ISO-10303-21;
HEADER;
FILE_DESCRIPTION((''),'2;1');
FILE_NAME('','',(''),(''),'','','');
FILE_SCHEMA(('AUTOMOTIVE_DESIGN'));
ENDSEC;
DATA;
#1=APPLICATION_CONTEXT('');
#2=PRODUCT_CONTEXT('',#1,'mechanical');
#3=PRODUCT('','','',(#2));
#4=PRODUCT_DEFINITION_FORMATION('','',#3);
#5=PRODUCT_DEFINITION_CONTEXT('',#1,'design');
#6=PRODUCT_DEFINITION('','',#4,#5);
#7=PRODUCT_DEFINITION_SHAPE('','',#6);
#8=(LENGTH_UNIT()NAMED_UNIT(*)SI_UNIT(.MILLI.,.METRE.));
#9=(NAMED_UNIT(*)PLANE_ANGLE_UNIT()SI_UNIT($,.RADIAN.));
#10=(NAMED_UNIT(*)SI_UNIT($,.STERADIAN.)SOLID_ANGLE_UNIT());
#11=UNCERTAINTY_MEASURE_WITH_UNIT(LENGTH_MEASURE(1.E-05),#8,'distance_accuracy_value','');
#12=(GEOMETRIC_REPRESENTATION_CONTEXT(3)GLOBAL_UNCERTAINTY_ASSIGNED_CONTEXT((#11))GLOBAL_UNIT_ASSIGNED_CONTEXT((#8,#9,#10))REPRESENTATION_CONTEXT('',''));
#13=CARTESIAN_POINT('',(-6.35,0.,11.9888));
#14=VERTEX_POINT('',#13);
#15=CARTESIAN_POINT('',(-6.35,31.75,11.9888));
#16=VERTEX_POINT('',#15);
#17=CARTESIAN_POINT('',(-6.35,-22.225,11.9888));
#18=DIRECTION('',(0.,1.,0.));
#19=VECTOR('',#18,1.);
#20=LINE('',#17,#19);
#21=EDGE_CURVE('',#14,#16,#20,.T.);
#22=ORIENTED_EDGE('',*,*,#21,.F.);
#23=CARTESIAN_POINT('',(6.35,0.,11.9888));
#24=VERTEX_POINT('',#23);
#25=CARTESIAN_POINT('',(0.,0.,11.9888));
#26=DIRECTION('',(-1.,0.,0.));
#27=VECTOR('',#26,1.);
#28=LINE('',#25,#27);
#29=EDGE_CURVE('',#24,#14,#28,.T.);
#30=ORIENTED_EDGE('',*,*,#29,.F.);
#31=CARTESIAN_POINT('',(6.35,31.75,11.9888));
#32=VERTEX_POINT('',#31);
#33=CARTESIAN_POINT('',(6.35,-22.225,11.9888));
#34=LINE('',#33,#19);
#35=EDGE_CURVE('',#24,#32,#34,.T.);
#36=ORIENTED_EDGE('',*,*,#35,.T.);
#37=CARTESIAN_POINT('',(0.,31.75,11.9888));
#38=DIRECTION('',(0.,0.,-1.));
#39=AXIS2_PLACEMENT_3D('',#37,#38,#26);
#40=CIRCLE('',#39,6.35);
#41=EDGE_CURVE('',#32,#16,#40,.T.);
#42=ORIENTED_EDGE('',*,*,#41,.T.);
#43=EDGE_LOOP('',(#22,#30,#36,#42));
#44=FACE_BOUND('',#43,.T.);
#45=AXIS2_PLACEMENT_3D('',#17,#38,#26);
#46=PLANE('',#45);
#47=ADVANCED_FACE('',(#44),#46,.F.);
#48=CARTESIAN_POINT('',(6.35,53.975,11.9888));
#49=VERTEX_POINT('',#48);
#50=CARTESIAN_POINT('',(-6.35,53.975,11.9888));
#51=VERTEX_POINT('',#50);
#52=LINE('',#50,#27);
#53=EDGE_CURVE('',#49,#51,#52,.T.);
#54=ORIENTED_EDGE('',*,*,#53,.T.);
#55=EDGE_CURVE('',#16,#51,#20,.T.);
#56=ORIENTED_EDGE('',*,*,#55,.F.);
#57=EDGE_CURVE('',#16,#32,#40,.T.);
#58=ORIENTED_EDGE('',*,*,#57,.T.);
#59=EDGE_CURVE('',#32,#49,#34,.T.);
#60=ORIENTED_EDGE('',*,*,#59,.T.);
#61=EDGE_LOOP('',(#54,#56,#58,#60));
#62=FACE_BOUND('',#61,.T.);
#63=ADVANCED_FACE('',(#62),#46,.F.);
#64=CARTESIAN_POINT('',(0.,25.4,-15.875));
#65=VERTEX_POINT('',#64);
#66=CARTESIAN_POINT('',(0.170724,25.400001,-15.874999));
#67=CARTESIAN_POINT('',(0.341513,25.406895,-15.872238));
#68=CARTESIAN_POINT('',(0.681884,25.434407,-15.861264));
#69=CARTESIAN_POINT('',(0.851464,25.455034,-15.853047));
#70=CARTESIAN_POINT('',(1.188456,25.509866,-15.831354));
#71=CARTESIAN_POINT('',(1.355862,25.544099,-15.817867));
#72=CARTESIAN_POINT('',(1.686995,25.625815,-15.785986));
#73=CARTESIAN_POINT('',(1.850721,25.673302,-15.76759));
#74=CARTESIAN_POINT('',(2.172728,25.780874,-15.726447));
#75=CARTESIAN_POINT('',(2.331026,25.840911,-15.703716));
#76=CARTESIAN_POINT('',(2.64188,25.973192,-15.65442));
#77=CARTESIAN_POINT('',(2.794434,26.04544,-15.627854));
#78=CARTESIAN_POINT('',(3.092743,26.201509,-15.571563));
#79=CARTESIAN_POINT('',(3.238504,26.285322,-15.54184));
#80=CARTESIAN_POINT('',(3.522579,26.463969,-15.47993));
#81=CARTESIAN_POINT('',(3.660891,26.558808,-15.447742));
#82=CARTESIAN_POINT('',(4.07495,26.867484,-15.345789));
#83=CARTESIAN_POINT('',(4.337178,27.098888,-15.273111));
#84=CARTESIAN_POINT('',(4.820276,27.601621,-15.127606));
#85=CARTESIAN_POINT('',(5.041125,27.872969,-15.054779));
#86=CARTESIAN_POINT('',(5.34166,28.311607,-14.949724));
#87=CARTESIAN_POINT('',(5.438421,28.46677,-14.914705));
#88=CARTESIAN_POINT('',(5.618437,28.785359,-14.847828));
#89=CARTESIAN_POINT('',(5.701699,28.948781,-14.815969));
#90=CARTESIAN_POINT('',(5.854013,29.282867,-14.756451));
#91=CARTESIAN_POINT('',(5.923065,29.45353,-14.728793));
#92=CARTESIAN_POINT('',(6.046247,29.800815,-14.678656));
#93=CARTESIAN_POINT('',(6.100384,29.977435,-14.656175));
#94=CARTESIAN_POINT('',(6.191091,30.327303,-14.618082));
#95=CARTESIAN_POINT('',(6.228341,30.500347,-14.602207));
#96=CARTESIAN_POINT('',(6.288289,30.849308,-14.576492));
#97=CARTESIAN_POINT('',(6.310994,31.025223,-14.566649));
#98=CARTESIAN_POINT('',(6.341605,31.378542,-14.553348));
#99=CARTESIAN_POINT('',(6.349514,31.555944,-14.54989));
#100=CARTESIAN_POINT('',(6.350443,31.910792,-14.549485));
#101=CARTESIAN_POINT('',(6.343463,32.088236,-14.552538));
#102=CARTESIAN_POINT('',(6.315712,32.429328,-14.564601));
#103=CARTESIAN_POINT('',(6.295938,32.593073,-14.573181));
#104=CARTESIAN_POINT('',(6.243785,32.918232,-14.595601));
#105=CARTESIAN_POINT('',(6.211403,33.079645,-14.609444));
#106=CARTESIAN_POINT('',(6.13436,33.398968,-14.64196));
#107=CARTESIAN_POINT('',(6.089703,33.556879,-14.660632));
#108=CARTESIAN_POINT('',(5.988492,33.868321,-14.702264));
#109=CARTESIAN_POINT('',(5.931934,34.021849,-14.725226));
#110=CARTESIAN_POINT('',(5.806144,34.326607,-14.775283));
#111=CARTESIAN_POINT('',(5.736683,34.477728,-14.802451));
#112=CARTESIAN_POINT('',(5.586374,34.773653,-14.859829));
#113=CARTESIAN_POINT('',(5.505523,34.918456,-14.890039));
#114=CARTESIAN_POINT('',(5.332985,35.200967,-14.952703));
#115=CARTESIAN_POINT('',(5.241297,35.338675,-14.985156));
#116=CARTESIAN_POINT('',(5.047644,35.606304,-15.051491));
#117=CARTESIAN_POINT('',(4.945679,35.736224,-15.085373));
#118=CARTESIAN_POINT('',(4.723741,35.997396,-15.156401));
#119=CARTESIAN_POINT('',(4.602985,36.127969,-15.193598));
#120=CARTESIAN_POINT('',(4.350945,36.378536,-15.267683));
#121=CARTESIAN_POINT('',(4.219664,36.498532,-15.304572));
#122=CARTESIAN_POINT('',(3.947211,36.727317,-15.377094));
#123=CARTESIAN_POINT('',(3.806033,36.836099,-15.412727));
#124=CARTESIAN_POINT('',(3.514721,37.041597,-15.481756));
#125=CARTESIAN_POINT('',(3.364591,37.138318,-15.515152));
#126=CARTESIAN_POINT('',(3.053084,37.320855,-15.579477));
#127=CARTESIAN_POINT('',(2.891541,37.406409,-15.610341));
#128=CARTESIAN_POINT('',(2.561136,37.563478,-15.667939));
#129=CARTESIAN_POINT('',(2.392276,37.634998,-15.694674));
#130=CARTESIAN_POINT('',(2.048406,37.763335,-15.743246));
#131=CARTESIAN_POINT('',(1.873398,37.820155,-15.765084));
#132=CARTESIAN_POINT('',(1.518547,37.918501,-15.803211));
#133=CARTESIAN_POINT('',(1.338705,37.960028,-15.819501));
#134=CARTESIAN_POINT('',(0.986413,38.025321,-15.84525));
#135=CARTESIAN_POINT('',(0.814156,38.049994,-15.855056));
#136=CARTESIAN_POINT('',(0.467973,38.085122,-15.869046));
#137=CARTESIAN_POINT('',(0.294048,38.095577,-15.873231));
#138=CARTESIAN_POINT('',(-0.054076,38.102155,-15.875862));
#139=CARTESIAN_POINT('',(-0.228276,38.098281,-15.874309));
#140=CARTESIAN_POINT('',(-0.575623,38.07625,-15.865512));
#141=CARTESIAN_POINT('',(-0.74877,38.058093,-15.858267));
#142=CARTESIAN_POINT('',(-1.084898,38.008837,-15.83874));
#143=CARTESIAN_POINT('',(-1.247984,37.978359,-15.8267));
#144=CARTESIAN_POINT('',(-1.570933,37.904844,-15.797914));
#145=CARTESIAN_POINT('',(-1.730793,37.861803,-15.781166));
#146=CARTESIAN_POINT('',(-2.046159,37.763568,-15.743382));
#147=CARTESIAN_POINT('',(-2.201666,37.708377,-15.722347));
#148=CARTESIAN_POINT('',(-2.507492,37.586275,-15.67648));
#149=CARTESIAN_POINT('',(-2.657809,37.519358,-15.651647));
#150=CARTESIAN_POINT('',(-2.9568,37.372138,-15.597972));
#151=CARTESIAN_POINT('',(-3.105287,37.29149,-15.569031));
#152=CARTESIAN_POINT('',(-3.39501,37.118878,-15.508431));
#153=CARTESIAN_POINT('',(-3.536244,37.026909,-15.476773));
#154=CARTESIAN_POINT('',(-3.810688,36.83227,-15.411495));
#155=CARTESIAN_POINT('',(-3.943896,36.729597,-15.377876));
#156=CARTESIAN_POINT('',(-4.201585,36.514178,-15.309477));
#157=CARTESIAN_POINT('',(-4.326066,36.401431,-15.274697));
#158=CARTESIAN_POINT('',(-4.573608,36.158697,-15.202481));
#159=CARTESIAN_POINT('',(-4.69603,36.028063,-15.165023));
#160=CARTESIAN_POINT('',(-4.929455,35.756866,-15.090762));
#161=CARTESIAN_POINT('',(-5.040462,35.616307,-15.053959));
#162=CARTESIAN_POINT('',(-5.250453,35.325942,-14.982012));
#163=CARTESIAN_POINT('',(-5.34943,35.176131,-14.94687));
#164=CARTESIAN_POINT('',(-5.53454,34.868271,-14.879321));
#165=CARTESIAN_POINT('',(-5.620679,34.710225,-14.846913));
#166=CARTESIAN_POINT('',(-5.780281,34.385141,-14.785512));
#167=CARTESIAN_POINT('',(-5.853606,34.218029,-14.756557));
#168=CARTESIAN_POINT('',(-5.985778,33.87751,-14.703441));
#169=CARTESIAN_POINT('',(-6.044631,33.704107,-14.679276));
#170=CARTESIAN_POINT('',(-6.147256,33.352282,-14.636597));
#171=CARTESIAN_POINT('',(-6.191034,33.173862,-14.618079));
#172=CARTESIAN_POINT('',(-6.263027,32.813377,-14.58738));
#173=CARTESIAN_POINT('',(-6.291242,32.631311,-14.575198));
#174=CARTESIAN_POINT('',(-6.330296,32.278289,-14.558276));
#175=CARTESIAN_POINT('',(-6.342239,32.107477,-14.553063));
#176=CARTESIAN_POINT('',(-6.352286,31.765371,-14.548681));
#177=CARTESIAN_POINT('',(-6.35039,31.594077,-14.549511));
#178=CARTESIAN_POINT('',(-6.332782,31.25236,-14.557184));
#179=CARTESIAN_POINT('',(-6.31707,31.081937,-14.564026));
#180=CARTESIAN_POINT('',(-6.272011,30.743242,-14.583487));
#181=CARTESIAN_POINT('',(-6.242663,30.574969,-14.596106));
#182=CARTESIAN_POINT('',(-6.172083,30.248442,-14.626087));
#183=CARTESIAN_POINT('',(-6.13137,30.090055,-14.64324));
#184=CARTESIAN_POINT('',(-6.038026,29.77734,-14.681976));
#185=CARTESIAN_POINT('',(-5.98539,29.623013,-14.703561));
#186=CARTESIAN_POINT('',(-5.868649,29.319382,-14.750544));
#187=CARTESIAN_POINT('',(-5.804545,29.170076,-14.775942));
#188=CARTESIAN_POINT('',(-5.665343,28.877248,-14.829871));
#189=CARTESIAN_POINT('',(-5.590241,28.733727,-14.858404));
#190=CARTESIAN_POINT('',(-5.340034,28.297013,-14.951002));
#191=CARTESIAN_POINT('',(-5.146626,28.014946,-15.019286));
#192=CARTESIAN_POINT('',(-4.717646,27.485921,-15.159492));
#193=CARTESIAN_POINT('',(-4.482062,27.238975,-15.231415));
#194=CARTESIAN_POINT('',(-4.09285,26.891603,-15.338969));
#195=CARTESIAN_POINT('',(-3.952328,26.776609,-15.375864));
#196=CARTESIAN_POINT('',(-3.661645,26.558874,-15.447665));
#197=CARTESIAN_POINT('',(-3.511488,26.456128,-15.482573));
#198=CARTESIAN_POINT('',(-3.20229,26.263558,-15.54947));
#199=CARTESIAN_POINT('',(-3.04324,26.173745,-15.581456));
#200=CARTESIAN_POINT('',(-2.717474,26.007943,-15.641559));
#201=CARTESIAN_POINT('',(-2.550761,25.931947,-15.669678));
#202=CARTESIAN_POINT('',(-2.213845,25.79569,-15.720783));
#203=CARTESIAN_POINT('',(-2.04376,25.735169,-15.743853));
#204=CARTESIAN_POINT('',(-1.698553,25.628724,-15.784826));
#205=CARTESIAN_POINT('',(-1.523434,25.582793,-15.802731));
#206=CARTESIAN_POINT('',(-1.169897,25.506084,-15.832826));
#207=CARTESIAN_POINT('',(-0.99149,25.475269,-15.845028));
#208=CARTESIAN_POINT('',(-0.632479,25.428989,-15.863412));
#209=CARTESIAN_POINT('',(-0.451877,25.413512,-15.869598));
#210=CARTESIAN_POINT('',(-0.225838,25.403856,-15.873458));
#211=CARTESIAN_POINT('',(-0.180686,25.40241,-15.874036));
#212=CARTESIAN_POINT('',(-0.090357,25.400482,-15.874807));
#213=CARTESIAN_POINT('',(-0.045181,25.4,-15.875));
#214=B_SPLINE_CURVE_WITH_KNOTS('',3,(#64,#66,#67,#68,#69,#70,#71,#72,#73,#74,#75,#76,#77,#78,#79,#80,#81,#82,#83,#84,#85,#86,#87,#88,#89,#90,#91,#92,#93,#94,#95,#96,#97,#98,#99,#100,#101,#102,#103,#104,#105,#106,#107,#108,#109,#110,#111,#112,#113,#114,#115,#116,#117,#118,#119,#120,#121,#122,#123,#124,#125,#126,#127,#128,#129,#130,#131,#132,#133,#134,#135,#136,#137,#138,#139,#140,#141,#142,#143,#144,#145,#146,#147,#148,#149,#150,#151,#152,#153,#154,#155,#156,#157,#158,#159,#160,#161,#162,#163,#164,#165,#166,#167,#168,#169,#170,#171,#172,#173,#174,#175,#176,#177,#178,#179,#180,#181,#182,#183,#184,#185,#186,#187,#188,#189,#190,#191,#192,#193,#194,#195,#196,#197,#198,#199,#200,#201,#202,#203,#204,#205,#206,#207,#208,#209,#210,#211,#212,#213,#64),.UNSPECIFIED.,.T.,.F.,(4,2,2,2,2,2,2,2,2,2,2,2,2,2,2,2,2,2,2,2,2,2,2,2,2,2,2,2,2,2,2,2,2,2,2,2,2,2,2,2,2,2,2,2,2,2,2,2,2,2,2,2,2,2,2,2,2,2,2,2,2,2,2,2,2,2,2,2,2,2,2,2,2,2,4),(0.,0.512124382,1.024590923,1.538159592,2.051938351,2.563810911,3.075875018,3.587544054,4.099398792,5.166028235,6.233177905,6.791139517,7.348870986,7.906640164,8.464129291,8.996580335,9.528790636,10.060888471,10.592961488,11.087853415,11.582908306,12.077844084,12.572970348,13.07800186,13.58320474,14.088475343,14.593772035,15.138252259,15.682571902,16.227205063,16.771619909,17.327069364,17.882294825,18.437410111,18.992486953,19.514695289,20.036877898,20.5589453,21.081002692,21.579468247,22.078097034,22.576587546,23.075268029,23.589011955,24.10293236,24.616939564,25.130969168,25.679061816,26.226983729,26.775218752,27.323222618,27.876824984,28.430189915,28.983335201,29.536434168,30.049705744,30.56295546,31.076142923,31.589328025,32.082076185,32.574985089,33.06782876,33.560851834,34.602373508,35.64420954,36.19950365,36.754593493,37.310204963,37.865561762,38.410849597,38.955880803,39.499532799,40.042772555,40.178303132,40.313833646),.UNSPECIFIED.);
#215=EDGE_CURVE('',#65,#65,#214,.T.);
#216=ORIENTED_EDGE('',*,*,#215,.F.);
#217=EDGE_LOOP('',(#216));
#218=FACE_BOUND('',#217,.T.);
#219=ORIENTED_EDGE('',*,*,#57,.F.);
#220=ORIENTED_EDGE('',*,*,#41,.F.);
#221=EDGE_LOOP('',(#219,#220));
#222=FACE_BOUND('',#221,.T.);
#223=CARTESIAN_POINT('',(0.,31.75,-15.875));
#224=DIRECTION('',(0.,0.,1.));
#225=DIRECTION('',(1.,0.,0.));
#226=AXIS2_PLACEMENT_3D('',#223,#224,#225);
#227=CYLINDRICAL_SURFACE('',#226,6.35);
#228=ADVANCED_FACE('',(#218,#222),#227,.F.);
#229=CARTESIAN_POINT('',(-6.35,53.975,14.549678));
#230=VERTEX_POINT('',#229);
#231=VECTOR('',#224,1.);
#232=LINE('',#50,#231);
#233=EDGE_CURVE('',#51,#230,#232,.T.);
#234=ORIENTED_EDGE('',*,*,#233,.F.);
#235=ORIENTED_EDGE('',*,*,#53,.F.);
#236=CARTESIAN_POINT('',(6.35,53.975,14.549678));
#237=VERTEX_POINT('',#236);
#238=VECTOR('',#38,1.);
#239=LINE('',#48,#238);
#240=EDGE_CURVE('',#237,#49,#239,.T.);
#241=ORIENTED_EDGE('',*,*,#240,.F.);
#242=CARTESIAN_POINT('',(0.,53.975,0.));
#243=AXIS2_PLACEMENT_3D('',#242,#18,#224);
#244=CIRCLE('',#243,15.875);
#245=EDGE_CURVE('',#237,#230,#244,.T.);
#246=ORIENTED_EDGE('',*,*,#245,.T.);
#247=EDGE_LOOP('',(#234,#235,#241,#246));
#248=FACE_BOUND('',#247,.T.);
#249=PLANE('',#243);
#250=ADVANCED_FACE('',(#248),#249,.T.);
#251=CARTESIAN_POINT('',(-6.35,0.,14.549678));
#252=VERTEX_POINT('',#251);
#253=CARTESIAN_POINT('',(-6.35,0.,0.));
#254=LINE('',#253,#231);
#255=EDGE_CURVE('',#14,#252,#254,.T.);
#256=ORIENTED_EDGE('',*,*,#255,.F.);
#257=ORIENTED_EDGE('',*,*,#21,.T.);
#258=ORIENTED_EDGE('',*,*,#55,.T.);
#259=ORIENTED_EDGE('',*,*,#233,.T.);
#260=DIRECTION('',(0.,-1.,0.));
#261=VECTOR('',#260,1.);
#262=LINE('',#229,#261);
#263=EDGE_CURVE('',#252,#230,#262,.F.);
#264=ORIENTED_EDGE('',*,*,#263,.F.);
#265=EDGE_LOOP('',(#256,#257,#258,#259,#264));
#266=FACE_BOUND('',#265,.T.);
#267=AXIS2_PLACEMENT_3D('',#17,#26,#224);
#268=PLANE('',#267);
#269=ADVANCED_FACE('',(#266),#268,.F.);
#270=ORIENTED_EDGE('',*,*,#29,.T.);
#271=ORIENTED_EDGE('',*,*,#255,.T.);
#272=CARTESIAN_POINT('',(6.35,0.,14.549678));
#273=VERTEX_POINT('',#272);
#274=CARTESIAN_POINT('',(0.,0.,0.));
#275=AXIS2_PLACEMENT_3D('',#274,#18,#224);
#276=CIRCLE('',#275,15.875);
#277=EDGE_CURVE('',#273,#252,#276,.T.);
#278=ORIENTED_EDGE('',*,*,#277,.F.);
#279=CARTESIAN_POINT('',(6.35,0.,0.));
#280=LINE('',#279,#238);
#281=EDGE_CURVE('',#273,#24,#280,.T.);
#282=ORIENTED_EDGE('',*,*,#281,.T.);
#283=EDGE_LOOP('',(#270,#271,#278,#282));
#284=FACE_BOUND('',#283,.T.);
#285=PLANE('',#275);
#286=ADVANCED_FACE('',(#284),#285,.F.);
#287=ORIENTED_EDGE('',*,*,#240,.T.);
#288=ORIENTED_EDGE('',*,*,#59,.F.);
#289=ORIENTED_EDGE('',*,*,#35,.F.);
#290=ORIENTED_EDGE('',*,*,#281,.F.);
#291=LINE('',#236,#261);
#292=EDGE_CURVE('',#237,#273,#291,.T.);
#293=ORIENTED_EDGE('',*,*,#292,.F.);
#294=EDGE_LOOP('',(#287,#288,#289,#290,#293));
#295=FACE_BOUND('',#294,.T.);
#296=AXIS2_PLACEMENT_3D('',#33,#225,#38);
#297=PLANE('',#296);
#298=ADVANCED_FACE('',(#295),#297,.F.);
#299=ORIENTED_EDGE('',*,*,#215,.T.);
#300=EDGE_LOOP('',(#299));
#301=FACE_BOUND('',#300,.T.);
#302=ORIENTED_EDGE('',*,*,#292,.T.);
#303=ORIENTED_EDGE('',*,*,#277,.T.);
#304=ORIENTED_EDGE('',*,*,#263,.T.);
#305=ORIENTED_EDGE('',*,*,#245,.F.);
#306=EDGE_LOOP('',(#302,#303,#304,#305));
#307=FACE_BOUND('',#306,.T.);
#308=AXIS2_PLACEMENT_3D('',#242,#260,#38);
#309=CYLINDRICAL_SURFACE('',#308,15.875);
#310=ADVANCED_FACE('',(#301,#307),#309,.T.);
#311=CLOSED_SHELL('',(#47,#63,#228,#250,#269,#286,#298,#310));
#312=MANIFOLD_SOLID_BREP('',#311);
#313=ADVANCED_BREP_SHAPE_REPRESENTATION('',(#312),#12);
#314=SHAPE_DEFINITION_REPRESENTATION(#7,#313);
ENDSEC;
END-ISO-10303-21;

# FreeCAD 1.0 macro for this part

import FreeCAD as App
import Part
import Sketcher
Q = App.Units.Quantity


def add_polygon(sketch, points):
    """Adds a closed chain of lines whose ends are joined by coincident constraints."""
    first, n = sketch.GeometryCount, len(points)
    for a, b in zip(points, points[1:] + points[:1]):
        sketch.addGeometry(Part.LineSegment(App.Vector(*a, 0), App.Vector(*b, 0)), False)
    for i in range(n):
        sketch.addConstraint(Sketcher.Constraint("Coincident", first + i, 2, first + (i + 1) % n, 1))

doc = App.newDocument("Part")
params = doc.addObject("Spreadsheet::Sheet", "Params")
for row, (alias, value) in enumerate([
    ("sketch1_diameter", "1.25 in"),
    ("pad1_length", "2.125 in"),
    ("sketch2_width", "0.5 in"),
    ("sketch2_height", "0.153 in"),
    ("pocket1_length", "3 in"),
    ("sketch3_diameter", "0.5 in"),
], start=1):
    params.set(f"A{row}", alias)
    params.set(f"B{row}", "=" + value)
    params.setAlias(f"B{row}", alias)

body = doc.addObject("PartDesign::Body", "Body")

sketch1 = body.newObject("Sketcher::SketchObject", "Sketch")
sketch1.AttachmentSupport = (doc.getObject("XZ_Plane"), [""])
sketch1.MapMode = "FlatFace"
sketch1.addGeometry(Part.Circle(App.Vector(0, 0, 0), App.Vector(0, 0, 1), 15.875), False)
sketch1.addConstraint([
    Sketcher.Constraint("Coincident", 0, 3, -1, 1),
    Sketcher.Constraint("Diameter", 0, Q("1.25 in")),
])
sketch1.setExpression("Constraints[1]", "Params.sketch1_diameter")
pad1 = body.newObject("PartDesign::Pad", "Pad")
pad1.Profile = sketch1
pad1.setExpression("Length", "Params.pad1_length")
pad1.Reversed = True

sketch2 = body.newObject("Sketcher::SketchObject", "Sketch001")
sketch2.AttachmentSupport = (doc.getObject("XZ_Plane"), [""])
sketch2.MapMode = "FlatFace"
sketch2.AttachmentOffset = App.Placement(App.Vector(0, 0, -2.125 * 25.4), App.Rotation())
add_polygon(sketch2, [(-6.35, 11.9888), (-6.35, 15.875), (6.35, 15.875), (6.35, 11.9888)])
sketch2.addConstraint([
    Sketcher.Constraint("Vertical", 0),
    Sketcher.Constraint("Horizontal", 1),
    Sketcher.Constraint("Vertical", 2),
    Sketcher.Constraint("Horizontal", 3),
    Sketcher.Constraint("DistanceX", 1, 1, 1, 2, Q("0.5 in")),
    Sketcher.Constraint("DistanceY", 0, 1, 0, 2, Q("0.153 in")),
    Sketcher.Constraint("DistanceX", 0, 2, -1, 1, Q("0.25 in")),
    Sketcher.Constraint("DistanceY", -1, 1, 0, 2, Q("0.625 in")),
])
sketch2.setExpression("Constraints[8]", "Params.sketch2_width")
sketch2.setExpression("Constraints[9]", "Params.sketch2_height")
pocket1 = body.newObject("PartDesign::Pocket", "Pocket")
pocket1.Profile = sketch2
pocket1.setExpression("Length", "Params.pocket1_length")
pocket1.Reversed = True

sketch3 = body.newObject("Sketcher::SketchObject", "Sketch002")
sketch3.AttachmentSupport = (doc.getObject("XY_Plane"), [""])
sketch3.MapMode = "FlatFace"
sketch3.addGeometry(Part.Circle(App.Vector(0, 31.75, 0), App.Vector(0, 0, 1), 6.35), False)
sketch3.addConstraint([
    Sketcher.Constraint("PointOnObject", 0, 3, -2),
    Sketcher.Constraint("Diameter", 0, Q("0.5 in")),
    Sketcher.Constraint("DistanceY", -1, 1, 0, 3, Q("1.25 in")),
])
sketch3.setExpression("Constraints[1]", "Params.sketch3_diameter")
pocket2 = body.newObject("PartDesign::Pocket", "Pocket001")
pocket2.Profile = sketch3
pocket2.Type = "ThroughAll"
pocket2.Midplane = True

doc.recompute()
